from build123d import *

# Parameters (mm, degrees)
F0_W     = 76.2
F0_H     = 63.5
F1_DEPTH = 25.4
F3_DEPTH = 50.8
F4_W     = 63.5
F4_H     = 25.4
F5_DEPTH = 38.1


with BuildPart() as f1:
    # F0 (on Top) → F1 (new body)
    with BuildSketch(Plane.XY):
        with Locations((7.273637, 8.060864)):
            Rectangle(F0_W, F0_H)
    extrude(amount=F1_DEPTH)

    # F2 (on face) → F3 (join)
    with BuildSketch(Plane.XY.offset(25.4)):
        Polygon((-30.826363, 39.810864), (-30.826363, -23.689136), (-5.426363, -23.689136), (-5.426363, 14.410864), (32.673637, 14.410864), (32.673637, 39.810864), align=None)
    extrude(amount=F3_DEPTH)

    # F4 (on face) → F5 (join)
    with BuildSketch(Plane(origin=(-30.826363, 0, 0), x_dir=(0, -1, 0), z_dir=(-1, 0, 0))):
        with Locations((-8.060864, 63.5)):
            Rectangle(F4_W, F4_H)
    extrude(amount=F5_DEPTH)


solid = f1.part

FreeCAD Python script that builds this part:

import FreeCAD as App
import Part
import Sketcher
Q = App.Units.Quantity

doc = App.newDocument("Part")
params = doc.addObject("Spreadsheet::Sheet", "Params")
for row, (alias, value) in enumerate([
    ("sketch1_width", "3 in"),
    ("sketch1_height", "2.5 in"),
    ("pad1_length", "1 in"),
    ("sketch2_width", "1 in"),
    ("sketch2_width2", "1.5 in"),
    ("pad2_length", "2 in"),
    ("sketch3_height", "1 in"),
    ("sketch3_width", "2.5 in"),
    ("pad3_length", "1.5 in"),
], start=1):
    params.set(f"A{row}", alias)
    params.set(f"B{row}", "=" + value)
    params.setAlias(f"B{row}", alias)

body = doc.addObject("PartDesign::Body", "Body")

sketch1 = doc.addObject("Sketcher::SketchObject", "Sketch")
body.addObject(sketch1)
sketch1.AttachmentSupport = (doc.XY_Plane, [""])
sketch1.MapMode = "FlatFace"
sketch1.addGeometry(Part.LineSegment(App.Vector(-30.826363, 39.810864, 0), App.Vector(-30.826363, -23.689136, 0)), False)
sketch1.addGeometry(Part.LineSegment(App.Vector(-30.826363, -23.689136, 0), App.Vector(45.373637, -23.689136, 0)), False)
sketch1.addGeometry(Part.LineSegment(App.Vector(45.373637, -23.689136, 0), App.Vector(45.373637, 39.810864, 0)), False)
sketch1.addGeometry(Part.LineSegment(App.Vector(45.373637, 39.810864, 0), App.Vector(-30.826363, 39.810864, 0)), False)
sketch1.addConstraint(Sketcher.Constraint("Coincident", 0, 2, 1, 1))
sketch1.addConstraint(Sketcher.Constraint("Coincident", 1, 2, 2, 1))
sketch1.addConstraint(Sketcher.Constraint("Coincident", 2, 2, 3, 1))
sketch1.addConstraint(Sketcher.Constraint("Coincident", 3, 2, 0, 1))
sketch1.addConstraint(Sketcher.Constraint("Vertical", 0))
sketch1.addConstraint(Sketcher.Constraint("Horizontal", 1))
sketch1.addConstraint(Sketcher.Constraint("Vertical", 2))
sketch1.addConstraint(Sketcher.Constraint("Horizontal", 3))
sketch1.addConstraint(Sketcher.Constraint("DistanceX", 1, 1, 1, 2, Q("3 in")))
sketch1.addConstraint(Sketcher.Constraint("DistanceY", 0, 2, 0, 1, Q("2.5 in")))
sketch1.addConstraint(Sketcher.Constraint("DistanceX", 0, 2, -1, 1, Q("30.826363 mm")))
sketch1.addConstraint(Sketcher.Constraint("DistanceY", 0, 2, -1, 1, Q("23.689136 mm")))
sketch1.setExpression("Constraints[8]", "Params.sketch1_width")
sketch1.setExpression("Constraints[9]", "Params.sketch1_height")
pad1 = doc.addObject("PartDesign::Pad", "Pad")
body.addObject(pad1)
pad1.Profile = sketch1
pad1.setExpression("Length", "Params.pad1_length")

sketch2 = doc.addObject("Sketcher::SketchObject", "Sketch001")
body.addObject(sketch2)
sketch2.AttachmentSupport = (doc.XY_Plane, [""])
sketch2.MapMode = "FlatFace"
sketch2.AttachmentOffset = App.Placement(App.Vector(0, 0, 1 * 25.4), App.Rotation())
sketch2.addGeometry(Part.LineSegment(App.Vector(-30.826363, 39.810864, 0), App.Vector(-30.826363, -23.689136, 0)), False)
sketch2.addGeometry(Part.LineSegment(App.Vector(-30.826363, -23.689136, 0), App.Vector(-5.426363, -23.689136, 0)), False)
sketch2.addGeometry(Part.LineSegment(App.Vector(-5.426363, -23.689136, 0), App.Vector(-5.426363, 14.410864, 0)), False)
sketch2.addGeometry(Part.LineSegment(App.Vector(-5.426363, 14.410864, 0), App.Vector(32.673637, 14.410864, 0)), False)
sketch2.addGeometry(Part.LineSegment(App.Vector(32.673637, 14.410864, 0), App.Vector(32.673637, 39.810864, 0)), False)
sketch2.addGeometry(Part.LineSegment(App.Vector(32.673637, 39.810864, 0), App.Vector(-30.826363, 39.810864, 0)), False)
sketch2.addConstraint(Sketcher.Constraint("Coincident", 0, 2, 1, 1))
sketch2.addConstraint(Sketcher.Constraint("Coincident", 1, 2, 2, 1))
sketch2.addConstraint(Sketcher.Constraint("Coincident", 2, 2, 3, 1))
sketch2.addConstraint(Sketcher.Constraint("Coincident", 3, 2, 4, 1))
sketch2.addConstraint(Sketcher.Constraint("Coincident", 4, 2, 5, 1))
sketch2.addConstraint(Sketcher.Constraint("Coincident", 5, 2, 0, 1))
sketch2.addConstraint(Sketcher.Constraint("Vertical", 0))
sketch2.addConstraint(Sketcher.Constraint("Horizontal", 1))
sketch2.addConstraint(Sketcher.Constraint("Vertical", 2))
sketch2.addConstraint(Sketcher.Constraint("Horizontal", 3))
sketch2.addConstraint(Sketcher.Constraint("Vertical", 4))
sketch2.addConstraint(Sketcher.Constraint("Horizontal", 5))
sketch2.addConstraint(Sketcher.Constraint("Equal", 5, 0))
sketch2.addConstraint(Sketcher.Constraint("Equal", 3, 2))
sketch2.addConstraint(Sketcher.Constraint("DistanceX", 1, 1, 1, 2, Q("1 in")))
sketch2.addConstraint(Sketcher.Constraint("DistanceX", 3, 1, 3, 2, Q("1.5 in")))
sketch2.addConstraint(Sketcher.Constraint("DistanceX", 0, 2, -1, 1, Q("30.826363 mm")))
sketch2.addConstraint(Sketcher.Constraint("DistanceY", 0, 2, -1, 1, Q("23.689136 mm")))
sketch2.setExpression("Constraints[14]", "Params.sketch2_width")
sketch2.setExpression("Constraints[15]", "Params.sketch2_width2")
pad2 = doc.addObject("PartDesign::Pad", "Pad001")
body.addObject(pad2)
pad2.Profile = sketch2
pad2.setExpression("Length", "Params.pad2_length")

sketch3 = doc.addObject("Sketcher::SketchObject", "Sketch002")
body.addObject(sketch3)
sketch3.AttachmentSupport = (doc.YZ_Plane, [""])
sketch3.MapMode = "FlatFace"
sketch3.AttachmentOffset = App.Placement(App.Vector(0, 0, -30.826363), App.Rotation())
sketch3.addGeometry(Part.LineSegment(App.Vector(39.810864, 76.2, 0), App.Vector(39.810864, 50.8, 0)), False)
sketch3.addGeometry(Part.LineSegment(App.Vector(39.810864, 50.8, 0), App.Vector(-23.689136, 50.8, 0)), False)
sketch3.addGeometry(Part.LineSegment(App.Vector(-23.689136, 50.8, 0), App.Vector(-23.689136, 76.2, 0)), False)
sketch3.addGeometry(Part.LineSegment(App.Vector(-23.689136, 76.2, 0), App.Vector(39.810864, 76.2, 0)), False)
sketch3.addConstraint(Sketcher.Constraint("Coincident", 0, 2, 1, 1))
sketch3.addConstraint(Sketcher.Constraint("Coincident", 1, 2, 2, 1))
sketch3.addConstraint(Sketcher.Constraint("Coincident", 2, 2, 3, 1))
sketch3.addConstraint(Sketcher.Constraint("Coincident", 3, 2, 0, 1))
sketch3.addConstraint(Sketcher.Constraint("Vertical", 0))
sketch3.addConstraint(Sketcher.Constraint("Horizontal", 1))
sketch3.addConstraint(Sketcher.Constraint("Vertical", 2))
sketch3.addConstraint(Sketcher.Constraint("Horizontal", 3))
sketch3.addConstraint(Sketcher.Constraint("DistanceY", 0, 2, 0, 1, Q("1 in")))
sketch3.addConstraint(Sketcher.Constraint("DistanceX", 1, 2, 1, 1, Q("2.5 in")))
sketch3.addConstraint(Sketcher.Constraint("DistanceY", -1, 1, 0, 2, Q("2 in")))
sketch3.addConstraint(Sketcher.Constraint("DistanceX", -1, 1, 0, 2, Q("39.810864 mm")))
sketch3.setExpression("Constraints[8]", "Params.sketch3_height")
sketch3.setExpression("Constraints[9]", "Params.sketch3_width")
pad3 = doc.addObject("PartDesign::Pad", "Pad002")
body.addObject(pad3)
pad3.Profile = sketch3
pad3.setExpression("Length", "Params.pad3_length")
pad3.Reversed = True

doc.recompute()
